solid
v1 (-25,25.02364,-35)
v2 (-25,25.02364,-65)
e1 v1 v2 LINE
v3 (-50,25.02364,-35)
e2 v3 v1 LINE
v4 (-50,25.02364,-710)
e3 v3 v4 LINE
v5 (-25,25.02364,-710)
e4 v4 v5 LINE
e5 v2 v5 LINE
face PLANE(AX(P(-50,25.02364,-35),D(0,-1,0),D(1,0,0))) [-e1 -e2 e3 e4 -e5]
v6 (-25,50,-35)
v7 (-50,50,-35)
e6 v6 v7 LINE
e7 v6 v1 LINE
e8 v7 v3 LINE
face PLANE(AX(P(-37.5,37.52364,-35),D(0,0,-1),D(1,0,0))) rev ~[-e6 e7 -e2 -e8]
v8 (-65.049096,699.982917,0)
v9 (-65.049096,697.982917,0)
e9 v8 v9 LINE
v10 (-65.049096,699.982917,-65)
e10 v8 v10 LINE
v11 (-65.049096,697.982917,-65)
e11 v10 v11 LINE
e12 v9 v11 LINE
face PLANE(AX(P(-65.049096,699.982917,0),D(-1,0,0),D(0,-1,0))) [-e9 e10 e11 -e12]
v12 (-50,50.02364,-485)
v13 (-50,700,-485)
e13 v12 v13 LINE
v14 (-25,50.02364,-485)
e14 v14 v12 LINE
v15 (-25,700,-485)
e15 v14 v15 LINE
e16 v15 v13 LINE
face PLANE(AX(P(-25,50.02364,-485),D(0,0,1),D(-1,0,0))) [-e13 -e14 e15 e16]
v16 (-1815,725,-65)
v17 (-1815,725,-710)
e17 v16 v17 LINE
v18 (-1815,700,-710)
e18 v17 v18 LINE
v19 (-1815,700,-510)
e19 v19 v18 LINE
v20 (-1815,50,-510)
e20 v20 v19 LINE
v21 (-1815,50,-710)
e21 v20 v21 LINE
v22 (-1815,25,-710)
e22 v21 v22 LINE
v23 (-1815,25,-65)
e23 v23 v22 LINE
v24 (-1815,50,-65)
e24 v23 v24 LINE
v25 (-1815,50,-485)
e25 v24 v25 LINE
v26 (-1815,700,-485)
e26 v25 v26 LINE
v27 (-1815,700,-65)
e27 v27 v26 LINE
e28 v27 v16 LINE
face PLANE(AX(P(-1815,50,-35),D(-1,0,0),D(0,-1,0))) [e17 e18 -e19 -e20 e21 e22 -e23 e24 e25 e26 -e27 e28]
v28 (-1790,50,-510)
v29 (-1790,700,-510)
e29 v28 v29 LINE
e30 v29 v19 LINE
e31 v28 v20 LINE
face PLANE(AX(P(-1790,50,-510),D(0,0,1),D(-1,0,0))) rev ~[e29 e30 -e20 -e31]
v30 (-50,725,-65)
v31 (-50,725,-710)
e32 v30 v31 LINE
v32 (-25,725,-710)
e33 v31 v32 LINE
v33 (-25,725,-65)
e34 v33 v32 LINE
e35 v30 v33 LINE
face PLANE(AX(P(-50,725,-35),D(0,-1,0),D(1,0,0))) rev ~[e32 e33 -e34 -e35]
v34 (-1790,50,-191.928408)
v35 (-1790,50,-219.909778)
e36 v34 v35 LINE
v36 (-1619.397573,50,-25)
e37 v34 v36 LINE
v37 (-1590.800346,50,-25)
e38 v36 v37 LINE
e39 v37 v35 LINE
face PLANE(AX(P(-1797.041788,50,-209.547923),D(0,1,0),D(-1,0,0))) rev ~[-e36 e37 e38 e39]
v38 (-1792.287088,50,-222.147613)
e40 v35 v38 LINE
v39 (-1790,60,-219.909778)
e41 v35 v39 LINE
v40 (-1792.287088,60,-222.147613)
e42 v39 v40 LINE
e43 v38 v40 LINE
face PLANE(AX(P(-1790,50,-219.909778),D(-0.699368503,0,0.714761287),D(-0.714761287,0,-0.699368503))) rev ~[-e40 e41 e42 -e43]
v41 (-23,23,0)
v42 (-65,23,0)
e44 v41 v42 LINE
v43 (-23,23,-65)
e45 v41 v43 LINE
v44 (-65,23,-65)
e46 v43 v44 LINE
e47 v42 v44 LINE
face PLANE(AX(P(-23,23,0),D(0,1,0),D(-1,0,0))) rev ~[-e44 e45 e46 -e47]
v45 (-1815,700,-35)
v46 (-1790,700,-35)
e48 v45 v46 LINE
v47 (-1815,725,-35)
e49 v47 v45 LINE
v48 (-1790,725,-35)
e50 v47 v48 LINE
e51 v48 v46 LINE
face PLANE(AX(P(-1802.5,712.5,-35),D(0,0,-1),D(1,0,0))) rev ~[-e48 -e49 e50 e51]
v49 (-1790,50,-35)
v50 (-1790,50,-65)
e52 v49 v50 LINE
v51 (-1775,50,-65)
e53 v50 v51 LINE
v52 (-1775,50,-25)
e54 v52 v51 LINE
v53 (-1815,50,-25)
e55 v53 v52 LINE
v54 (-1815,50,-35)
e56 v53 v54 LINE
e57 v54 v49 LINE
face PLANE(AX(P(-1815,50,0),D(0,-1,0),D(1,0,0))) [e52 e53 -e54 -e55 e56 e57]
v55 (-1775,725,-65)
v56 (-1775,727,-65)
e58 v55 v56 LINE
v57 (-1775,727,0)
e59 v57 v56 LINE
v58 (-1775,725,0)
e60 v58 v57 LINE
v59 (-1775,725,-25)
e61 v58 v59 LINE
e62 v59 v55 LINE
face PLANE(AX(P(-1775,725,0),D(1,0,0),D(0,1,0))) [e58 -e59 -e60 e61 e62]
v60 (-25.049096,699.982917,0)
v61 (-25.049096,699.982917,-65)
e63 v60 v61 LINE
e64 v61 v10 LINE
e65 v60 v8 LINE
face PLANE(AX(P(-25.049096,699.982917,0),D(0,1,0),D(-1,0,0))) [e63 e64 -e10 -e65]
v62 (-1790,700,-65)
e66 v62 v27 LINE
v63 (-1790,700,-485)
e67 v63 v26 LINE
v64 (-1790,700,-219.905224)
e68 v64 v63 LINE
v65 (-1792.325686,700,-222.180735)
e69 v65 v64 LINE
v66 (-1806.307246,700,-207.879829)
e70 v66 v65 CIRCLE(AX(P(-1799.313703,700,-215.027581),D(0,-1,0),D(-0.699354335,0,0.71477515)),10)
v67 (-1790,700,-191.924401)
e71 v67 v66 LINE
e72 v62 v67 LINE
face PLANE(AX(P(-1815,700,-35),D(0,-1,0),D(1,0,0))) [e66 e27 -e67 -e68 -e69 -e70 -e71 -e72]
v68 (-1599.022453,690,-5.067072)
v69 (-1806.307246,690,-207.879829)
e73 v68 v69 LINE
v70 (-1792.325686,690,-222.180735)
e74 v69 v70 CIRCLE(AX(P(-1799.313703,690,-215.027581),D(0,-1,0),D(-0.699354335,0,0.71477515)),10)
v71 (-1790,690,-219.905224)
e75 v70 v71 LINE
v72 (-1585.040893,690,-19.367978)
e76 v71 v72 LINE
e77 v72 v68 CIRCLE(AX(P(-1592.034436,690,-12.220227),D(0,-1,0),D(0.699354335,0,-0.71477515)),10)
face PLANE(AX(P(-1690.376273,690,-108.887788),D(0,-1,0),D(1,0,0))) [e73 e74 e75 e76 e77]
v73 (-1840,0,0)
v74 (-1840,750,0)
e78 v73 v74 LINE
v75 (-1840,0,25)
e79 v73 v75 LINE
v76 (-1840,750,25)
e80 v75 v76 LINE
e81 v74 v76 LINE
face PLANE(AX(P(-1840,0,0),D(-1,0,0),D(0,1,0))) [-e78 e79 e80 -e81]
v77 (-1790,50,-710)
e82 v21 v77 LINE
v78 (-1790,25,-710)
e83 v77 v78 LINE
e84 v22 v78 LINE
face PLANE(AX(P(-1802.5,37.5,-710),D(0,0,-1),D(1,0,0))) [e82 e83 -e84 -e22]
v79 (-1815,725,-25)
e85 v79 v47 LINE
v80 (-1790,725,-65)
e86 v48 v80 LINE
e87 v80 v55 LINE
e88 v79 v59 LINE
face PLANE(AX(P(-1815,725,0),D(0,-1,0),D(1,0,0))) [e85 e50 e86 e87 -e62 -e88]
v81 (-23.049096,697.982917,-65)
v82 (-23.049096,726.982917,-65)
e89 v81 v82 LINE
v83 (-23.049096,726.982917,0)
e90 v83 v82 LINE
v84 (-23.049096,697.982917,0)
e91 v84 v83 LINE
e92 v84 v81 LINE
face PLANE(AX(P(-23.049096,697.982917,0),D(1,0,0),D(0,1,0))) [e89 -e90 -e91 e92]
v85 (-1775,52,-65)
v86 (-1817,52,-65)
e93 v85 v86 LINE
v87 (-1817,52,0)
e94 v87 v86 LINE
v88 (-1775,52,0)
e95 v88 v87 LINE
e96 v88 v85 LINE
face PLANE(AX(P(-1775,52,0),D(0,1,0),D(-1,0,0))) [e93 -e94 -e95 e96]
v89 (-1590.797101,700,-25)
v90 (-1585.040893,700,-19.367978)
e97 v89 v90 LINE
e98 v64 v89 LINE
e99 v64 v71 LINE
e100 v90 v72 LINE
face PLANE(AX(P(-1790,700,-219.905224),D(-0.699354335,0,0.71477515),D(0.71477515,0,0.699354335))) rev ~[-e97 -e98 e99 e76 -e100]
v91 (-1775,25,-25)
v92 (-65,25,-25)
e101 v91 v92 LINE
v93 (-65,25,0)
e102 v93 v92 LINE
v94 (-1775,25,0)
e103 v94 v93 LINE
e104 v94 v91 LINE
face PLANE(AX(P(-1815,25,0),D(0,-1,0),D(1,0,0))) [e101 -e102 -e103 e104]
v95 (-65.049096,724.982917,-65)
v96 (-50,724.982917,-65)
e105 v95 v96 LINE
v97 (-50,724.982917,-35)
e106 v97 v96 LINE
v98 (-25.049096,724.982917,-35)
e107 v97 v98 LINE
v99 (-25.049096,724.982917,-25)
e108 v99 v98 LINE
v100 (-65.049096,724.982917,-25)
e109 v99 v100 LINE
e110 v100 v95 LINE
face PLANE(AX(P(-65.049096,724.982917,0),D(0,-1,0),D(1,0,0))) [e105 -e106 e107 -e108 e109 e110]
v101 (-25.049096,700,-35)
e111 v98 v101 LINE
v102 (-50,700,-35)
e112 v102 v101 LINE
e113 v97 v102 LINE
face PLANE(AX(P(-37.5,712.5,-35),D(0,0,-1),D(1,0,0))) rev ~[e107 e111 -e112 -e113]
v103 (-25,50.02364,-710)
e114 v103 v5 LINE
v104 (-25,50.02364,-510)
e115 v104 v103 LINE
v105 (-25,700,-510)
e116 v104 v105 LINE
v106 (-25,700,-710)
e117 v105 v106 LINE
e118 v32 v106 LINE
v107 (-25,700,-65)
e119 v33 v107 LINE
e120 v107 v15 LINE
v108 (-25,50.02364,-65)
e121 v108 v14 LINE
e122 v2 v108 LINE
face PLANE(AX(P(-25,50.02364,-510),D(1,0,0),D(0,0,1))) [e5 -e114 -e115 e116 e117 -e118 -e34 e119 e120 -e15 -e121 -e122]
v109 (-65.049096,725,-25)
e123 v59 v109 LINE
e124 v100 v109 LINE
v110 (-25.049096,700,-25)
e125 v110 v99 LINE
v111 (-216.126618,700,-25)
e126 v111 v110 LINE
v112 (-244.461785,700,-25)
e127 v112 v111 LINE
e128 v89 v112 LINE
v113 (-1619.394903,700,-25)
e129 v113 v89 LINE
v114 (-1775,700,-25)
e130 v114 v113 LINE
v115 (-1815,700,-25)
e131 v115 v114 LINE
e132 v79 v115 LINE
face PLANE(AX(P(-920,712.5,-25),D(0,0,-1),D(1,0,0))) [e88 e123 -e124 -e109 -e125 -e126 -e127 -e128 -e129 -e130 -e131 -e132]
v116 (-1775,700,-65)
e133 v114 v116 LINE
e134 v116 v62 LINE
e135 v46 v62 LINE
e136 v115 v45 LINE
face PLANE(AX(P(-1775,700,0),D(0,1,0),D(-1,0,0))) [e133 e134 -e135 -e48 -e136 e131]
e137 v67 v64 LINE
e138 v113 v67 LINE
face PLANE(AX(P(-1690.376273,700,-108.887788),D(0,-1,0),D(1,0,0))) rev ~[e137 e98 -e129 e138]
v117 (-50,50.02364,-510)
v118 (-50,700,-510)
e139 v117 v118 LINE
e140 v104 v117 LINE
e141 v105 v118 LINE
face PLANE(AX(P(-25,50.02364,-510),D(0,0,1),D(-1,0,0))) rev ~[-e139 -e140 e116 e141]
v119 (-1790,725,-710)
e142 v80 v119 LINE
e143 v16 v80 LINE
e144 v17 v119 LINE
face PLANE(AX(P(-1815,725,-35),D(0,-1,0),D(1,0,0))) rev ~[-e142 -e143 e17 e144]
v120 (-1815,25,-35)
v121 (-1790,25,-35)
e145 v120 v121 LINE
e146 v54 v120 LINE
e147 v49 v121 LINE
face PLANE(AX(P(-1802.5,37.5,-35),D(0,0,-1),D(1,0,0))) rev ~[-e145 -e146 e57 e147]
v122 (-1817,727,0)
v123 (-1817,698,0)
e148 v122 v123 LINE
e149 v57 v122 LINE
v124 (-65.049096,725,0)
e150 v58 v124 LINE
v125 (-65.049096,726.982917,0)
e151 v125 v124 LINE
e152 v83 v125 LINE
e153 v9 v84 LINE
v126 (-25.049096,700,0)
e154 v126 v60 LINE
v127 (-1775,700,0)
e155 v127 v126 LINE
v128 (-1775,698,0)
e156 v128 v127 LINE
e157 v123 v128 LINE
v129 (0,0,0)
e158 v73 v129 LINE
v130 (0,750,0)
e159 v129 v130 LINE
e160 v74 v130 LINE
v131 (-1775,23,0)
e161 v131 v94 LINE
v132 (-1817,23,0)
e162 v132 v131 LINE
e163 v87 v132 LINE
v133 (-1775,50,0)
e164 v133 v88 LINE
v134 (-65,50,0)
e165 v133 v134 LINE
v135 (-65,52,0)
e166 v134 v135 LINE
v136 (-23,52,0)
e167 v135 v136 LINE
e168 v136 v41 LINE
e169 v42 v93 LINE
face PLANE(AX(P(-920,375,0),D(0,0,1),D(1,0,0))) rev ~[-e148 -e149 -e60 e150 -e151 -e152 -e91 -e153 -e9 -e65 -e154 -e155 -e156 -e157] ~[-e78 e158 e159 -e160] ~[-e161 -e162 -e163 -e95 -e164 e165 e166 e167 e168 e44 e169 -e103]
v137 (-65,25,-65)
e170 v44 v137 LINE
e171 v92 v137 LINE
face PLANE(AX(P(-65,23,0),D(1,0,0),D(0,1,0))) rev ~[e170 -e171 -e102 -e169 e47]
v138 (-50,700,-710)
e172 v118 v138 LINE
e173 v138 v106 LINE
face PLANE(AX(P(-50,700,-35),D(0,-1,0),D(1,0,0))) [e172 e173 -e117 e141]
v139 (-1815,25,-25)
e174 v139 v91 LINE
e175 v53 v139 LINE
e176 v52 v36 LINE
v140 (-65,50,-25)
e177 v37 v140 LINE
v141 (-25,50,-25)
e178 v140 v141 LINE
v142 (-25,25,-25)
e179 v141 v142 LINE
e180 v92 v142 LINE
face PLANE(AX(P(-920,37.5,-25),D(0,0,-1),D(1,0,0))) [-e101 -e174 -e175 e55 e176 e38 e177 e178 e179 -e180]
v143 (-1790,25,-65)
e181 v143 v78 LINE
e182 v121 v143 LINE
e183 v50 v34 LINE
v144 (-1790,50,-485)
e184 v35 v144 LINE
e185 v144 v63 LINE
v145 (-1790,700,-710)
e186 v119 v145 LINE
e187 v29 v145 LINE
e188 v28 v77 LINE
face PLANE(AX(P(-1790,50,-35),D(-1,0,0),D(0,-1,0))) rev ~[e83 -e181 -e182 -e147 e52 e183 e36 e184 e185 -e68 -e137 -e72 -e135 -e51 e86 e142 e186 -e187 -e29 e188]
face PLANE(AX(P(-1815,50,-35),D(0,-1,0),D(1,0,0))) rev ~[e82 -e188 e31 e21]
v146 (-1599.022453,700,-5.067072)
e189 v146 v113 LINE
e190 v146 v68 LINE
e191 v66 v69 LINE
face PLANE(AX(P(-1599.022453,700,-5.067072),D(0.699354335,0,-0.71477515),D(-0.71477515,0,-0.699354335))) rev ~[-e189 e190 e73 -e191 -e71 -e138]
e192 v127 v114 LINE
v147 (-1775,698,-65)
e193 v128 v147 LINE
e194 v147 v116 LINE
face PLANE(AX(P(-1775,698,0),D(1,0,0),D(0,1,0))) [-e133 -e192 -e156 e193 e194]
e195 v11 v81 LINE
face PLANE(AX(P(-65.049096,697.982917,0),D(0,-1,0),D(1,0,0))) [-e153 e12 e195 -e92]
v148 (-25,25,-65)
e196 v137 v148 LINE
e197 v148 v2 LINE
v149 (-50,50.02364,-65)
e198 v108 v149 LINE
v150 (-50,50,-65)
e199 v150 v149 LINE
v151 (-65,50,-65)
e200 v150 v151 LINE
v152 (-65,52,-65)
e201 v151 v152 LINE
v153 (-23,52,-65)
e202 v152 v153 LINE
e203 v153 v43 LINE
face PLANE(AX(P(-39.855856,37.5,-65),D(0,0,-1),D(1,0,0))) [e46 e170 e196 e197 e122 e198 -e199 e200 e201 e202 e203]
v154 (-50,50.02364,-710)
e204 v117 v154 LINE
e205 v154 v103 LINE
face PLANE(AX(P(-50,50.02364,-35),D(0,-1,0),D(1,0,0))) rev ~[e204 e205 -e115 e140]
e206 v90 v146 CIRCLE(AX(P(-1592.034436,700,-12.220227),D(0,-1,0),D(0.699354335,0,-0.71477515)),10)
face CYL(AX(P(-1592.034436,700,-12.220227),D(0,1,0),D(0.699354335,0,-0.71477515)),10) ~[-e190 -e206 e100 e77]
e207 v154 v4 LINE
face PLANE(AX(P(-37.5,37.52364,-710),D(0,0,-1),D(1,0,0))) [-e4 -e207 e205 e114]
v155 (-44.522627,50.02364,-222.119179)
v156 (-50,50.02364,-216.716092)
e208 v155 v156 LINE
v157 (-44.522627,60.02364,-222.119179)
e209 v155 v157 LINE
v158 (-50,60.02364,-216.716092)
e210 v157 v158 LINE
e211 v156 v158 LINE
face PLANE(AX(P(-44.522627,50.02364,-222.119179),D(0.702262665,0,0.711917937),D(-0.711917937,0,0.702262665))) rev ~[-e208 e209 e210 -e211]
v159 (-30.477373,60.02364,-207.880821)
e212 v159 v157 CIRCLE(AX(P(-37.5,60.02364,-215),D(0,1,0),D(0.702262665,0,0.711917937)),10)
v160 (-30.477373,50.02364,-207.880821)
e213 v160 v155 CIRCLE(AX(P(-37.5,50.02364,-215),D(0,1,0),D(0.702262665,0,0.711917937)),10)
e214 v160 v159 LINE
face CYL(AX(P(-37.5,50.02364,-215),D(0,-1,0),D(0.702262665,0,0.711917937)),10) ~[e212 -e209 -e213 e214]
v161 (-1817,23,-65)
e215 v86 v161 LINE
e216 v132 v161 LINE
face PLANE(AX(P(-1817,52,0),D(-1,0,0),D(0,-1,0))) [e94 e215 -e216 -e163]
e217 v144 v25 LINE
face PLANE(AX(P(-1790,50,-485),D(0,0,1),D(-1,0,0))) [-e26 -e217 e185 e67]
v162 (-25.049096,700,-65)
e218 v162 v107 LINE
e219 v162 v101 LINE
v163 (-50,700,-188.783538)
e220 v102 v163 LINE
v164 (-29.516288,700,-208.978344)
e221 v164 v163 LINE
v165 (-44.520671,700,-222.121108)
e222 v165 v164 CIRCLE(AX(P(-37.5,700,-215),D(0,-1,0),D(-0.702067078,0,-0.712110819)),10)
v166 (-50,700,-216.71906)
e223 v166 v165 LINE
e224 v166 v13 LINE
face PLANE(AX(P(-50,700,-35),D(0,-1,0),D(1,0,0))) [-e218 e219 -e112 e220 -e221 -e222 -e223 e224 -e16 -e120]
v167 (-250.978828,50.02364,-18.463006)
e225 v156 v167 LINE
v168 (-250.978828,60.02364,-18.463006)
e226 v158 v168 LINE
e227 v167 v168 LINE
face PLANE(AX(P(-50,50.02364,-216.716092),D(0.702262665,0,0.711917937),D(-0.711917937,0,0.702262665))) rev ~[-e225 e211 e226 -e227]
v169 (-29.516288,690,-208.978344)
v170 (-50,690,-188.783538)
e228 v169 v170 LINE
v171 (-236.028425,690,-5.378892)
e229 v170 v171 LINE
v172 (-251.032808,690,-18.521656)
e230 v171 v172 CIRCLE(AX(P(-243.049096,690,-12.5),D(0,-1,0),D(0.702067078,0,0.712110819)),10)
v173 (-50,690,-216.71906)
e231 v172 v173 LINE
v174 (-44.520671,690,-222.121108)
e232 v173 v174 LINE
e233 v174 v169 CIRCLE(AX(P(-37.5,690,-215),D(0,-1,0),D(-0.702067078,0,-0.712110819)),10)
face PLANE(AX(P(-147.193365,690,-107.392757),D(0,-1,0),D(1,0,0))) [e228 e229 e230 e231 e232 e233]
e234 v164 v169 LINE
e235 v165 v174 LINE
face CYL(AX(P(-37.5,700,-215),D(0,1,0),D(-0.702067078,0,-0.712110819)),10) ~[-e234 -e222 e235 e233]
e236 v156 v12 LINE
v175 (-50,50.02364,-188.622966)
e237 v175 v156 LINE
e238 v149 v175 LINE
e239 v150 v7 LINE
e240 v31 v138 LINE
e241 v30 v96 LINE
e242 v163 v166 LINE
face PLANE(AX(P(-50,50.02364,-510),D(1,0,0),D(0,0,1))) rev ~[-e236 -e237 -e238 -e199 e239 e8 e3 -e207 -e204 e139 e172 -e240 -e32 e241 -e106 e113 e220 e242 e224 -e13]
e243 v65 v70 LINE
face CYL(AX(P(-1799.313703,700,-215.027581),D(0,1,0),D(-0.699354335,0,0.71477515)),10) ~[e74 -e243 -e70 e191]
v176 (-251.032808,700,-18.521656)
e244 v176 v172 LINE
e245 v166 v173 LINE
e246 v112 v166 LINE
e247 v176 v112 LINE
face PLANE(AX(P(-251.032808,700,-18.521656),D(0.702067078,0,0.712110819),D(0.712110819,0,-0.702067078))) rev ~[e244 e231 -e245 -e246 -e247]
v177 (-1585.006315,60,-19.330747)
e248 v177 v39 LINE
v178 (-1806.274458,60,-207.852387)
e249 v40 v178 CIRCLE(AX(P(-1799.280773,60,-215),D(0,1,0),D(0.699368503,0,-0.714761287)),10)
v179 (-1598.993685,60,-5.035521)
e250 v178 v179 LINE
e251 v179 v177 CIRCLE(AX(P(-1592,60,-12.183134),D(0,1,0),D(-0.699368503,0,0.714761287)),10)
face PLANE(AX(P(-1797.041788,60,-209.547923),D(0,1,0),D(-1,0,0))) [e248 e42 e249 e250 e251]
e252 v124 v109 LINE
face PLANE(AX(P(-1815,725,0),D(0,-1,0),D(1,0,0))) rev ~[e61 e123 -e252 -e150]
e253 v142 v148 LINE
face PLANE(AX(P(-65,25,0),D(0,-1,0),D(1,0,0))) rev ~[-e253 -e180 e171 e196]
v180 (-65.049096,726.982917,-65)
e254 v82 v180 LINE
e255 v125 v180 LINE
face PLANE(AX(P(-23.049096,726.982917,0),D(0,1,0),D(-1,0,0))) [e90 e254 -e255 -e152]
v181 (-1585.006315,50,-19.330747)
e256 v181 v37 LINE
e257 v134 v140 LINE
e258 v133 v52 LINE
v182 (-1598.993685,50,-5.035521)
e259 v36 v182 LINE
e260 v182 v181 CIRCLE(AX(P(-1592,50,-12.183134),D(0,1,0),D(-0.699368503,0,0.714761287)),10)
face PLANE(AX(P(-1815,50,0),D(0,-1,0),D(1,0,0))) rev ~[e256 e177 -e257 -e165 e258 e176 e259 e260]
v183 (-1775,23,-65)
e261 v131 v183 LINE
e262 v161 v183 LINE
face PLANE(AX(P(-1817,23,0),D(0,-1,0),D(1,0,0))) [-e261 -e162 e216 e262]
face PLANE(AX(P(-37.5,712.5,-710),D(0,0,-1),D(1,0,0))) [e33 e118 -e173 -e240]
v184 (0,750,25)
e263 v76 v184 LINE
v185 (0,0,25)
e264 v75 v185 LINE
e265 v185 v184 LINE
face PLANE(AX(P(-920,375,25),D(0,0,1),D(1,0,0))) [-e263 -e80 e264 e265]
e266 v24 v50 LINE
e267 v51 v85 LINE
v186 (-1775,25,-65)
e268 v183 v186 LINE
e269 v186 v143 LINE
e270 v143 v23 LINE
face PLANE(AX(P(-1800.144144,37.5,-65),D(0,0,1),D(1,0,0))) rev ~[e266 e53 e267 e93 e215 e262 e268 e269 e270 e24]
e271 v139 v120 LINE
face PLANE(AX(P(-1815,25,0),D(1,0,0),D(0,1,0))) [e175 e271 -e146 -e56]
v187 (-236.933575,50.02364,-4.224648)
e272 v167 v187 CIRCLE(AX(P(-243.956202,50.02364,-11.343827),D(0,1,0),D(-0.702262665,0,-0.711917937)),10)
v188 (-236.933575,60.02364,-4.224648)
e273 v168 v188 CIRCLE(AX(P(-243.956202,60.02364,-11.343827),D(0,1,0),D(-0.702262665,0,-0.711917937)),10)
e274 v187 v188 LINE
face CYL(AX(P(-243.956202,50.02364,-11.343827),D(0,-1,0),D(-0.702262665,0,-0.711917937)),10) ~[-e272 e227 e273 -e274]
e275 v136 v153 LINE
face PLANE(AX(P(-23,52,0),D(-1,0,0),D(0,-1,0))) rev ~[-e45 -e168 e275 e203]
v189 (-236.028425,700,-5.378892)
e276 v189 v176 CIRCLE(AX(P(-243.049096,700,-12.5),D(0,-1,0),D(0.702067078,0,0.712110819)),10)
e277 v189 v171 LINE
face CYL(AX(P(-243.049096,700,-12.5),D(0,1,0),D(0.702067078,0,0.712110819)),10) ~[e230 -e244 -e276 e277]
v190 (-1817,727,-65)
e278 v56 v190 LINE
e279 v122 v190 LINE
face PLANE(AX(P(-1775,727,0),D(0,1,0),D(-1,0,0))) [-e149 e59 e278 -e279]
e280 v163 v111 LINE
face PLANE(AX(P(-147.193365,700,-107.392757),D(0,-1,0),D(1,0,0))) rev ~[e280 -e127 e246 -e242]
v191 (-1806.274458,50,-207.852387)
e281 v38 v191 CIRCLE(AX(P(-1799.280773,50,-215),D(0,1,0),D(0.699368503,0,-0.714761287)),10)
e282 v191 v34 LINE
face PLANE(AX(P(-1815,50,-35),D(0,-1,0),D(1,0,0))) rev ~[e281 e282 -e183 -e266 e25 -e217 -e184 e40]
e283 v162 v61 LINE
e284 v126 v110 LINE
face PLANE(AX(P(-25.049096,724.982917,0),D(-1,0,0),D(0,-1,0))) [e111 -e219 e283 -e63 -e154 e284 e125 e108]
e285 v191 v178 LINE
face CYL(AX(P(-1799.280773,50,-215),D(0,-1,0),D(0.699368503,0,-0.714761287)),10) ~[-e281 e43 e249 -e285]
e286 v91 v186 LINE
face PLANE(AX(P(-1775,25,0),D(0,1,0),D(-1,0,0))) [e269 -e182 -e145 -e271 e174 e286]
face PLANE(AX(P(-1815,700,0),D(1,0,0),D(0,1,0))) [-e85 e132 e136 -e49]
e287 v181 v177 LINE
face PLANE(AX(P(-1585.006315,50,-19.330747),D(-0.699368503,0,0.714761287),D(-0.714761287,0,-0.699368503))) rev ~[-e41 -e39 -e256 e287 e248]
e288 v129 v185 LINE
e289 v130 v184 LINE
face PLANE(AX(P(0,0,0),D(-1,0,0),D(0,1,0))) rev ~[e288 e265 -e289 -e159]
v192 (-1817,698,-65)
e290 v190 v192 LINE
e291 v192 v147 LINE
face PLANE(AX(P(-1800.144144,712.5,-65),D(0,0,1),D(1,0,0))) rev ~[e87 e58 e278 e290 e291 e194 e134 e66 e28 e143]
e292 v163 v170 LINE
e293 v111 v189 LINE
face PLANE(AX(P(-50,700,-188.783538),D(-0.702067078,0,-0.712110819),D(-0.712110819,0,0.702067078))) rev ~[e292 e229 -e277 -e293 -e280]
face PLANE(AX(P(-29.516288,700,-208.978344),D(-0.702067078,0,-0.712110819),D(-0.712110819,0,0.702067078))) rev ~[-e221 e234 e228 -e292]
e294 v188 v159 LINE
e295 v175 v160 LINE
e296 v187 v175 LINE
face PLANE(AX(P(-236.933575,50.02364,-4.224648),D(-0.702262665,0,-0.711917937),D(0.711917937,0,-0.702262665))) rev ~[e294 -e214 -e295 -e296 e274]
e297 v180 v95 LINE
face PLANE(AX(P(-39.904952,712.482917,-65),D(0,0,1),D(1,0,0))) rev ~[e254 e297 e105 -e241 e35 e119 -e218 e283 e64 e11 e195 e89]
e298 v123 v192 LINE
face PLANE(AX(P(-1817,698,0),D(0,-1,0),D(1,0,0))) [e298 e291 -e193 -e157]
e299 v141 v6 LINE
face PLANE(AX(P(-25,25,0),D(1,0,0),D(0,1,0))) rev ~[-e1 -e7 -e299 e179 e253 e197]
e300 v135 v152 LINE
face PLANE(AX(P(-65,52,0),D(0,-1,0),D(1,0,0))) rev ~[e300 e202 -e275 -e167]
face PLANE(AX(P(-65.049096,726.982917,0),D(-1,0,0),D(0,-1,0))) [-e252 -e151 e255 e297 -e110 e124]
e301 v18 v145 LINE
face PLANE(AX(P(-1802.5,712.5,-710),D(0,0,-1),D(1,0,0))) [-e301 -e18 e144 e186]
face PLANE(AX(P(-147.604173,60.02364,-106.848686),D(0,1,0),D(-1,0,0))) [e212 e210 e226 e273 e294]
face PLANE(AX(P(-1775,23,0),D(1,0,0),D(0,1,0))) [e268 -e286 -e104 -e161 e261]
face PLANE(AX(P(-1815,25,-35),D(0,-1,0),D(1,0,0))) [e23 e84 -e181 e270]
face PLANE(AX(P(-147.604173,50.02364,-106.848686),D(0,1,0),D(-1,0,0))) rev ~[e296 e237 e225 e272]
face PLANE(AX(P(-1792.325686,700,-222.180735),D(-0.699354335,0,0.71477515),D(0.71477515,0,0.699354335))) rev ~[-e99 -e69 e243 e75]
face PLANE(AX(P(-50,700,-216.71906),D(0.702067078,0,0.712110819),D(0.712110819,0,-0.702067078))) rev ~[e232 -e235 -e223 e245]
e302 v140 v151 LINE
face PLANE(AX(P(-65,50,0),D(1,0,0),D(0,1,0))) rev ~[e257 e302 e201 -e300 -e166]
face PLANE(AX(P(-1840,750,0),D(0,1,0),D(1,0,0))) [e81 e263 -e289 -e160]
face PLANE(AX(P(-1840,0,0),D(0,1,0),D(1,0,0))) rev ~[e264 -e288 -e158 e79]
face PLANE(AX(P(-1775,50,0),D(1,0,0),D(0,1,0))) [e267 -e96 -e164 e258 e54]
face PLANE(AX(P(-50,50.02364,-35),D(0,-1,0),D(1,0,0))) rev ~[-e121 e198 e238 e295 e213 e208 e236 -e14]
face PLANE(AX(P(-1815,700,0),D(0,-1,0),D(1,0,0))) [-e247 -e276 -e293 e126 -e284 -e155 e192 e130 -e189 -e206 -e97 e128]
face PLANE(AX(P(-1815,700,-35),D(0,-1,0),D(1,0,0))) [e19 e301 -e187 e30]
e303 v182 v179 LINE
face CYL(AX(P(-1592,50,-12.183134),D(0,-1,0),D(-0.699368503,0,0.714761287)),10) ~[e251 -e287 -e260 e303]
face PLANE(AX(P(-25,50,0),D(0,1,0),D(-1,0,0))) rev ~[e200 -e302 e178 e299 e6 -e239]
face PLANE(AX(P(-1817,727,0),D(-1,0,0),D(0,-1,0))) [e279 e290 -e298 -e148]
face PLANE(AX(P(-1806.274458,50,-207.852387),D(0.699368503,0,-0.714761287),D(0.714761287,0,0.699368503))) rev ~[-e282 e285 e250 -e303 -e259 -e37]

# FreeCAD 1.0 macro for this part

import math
import FreeCAD as App
import Part
import Sketcher

V = App.Vector


def add_polygon(sketch, points):
    """Adds a closed chain of lines whose ends are joined by coincident constraints."""
    first, n = sketch.GeometryCount, len(points)
    for a, b in zip(points, points[1:] + points[:1]):
        sketch.addGeometry(Part.LineSegment(App.Vector(*a, 0), App.Vector(*b, 0)), False)
    for i in range(n):
        sketch.addConstraint(Sketcher.Constraint("Coincident", first + i, 2, first + (i + 1) % n, 1))

doc = App.newDocument("Part")
params = doc.addObject("Spreadsheet::Sheet", "Params")
for row, (alias, value) in enumerate([
    ("sketch1_width", "1840 mm"),
    ("sketch1_height", "750 mm"),
    ("pad1_length", "25 mm"),
    ("sketch2_width", "1790 mm"),
    ("sketch2_height", "25 mm"),
    ("pad2_length", "25 mm"),
    ("sketch3_width", "40 mm"),
    ("sketch3_width2", "42 mm"),
    ("sketch3_height", "25 mm"),
    ("sketch3_height2", "2 mm"),
    ("pad3_length", "65 mm"),
    ("sketch4_width", "25 mm"),
    ("pad4_length", "675 mm"),
    ("sketch5_width", "40 mm"),
    ("sketch5_width2", "42 mm"),
    ("sketch5_height", "2 mm"),
    ("sketch5_height2", "29 mm"),
    ("pad5_length", "65 mm"),
    ("sketch6_width", "25 mm"),
    ("pad6_length", "675 mm"),
    ("sketch7_width", "25 mm"),
    ("pad7_length", "675 mm"),
    ("sketch8_width", "25 mm"),
    ("pad8_length", "650 mm"),
    ("sketch9_width", "25 mm"),
    ("pad9_length", "650 mm"),
    ("sketch10_radius", "10 mm"),
    ("pad10_length", "10 mm"),
    ("sketch11_radius", "10 mm"),
    ("sketch11_length", "290 mm"),
    ("pad11_length", "10 mm"),
    ("sketch12_radius", "10 mm"),
    ("sketch12_length", "290 mm"),
    ("pad12_length", "10 mm"),
    ("sketch13_radius", "10 mm"),
    ("sketch13_length", "290 mm"),
    ("pad13_length", "10 mm"),
], start=1):
    params.set(f"A{row}", alias)
    params.set(f"B{row}", "=" + value)
    params.setAlias(f"B{row}", alias)

body = doc.addObject("PartDesign::Body", "Body")

sketch1 = doc.addObject("Sketcher::SketchObject", "Sketch")
body.addObject(sketch1)
sketch1.AttachmentSupport = (doc.XY_Plane, [""])
sketch1.MapMode = "FlatFace"
add_polygon(sketch1, [(-1840, 750), (-1840, 0), (0, 0), (0, 750)])
sketch1.addConstraint(Sketcher.Constraint("Vertical", 0))
sketch1.addConstraint(Sketcher.Constraint("Horizontal", 1))
sketch1.addConstraint(Sketcher.Constraint("Vertical", 2))
sketch1.addConstraint(Sketcher.Constraint("Horizontal", 3))
sketch1.addConstraint(Sketcher.Constraint("Coincident", 1, 2, -1, 1))
sketch1.addConstraint(Sketcher.Constraint("DistanceX", 1, 1, 1, 2, 1840.0))
sketch1.addConstraint(Sketcher.Constraint("DistanceY", 0, 2, 0, 1, 750.0))
sketch1.setExpression("Constraints[9]", "Params.sketch1_width")
sketch1.setExpression("Constraints[10]", "Params.sketch1_height")
pad1 = doc.addObject("PartDesign::Pad", "Pad")
body.addObject(pad1)
pad1.Profile = sketch1
pad1.setExpression("Length", "Params.pad1_length")

sketch2 = doc.addObject("Sketcher::SketchObject", "Sketch001")
body.addObject(sketch2)
sketch2.AttachmentSupport = (doc.XY_Plane, [""])
sketch2.MapMode = "FlatFace"
add_polygon(sketch2, [(-1815, 25), (-1815, 50), (-25, 50), (-25, 25)])
add_polygon(sketch2, [(-1815, 700), (-1815, 725), (-25, 725), (-25, 700)])
sketch2.addConstraint(Sketcher.Constraint("Vertical", 0))
sketch2.addConstraint(Sketcher.Constraint("Horizontal", 1))
sketch2.addConstraint(Sketcher.Constraint("Vertical", 2))
sketch2.addConstraint(Sketcher.Constraint("Horizontal", 3))
sketch2.addConstraint(Sketcher.Constraint("Vertical", 4))
sketch2.addConstraint(Sketcher.Constraint("Horizontal", 5))
sketch2.addConstraint(Sketcher.Constraint("Vertical", 6))
sketch2.addConstraint(Sketcher.Constraint("Horizontal", 7))
sketch2.addConstraint(Sketcher.Constraint("Vertical", 3, 2, 4, 2))
sketch2.addConstraint(Sketcher.Constraint("Vertical", 2, 2, 5, 2))
sketch2.addConstraint(Sketcher.Constraint("Equal", 2, 4))
sketch2.addConstraint(Sketcher.Constraint("DistanceX", 1, 1, 1, 2, 1790.0))
sketch2.addConstraint(Sketcher.Constraint("DistanceY", 0, 1, 0, 2, 25.0))
sketch2.addConstraint(Sketcher.Constraint("DistanceX", 0, 2, -1, 1, 1815.0))
sketch2.addConstraint(Sketcher.Constraint("DistanceY", -1, 1, 0, 2, 50.0))
sketch2.addConstraint(Sketcher.Constraint("DistanceY", -1, 1, 4, 2, 725.0))
sketch2.setExpression("Constraints[19]", "Params.sketch2_width")
sketch2.setExpression("Constraints[20]", "Params.sketch2_height")
pad2 = doc.addObject("PartDesign::Pad", "Pad001")
body.addObject(pad2)
pad2.Profile = sketch2
pad2.setExpression("Length", "Params.pad2_length")
pad2.Reversed = True

sketch3 = doc.addObject("Sketcher::SketchObject", "Sketch002")
body.addObject(sketch3)
sketch3.AttachmentSupport = (doc.XY_Plane, [""])
sketch3.MapMode = "FlatFace"
add_polygon(sketch3, [(-65, 25), (-25, 25), (-25, 50), (-65, 50), (-65, 52), (-23, 52), (-23, 23), (-65, 23)])
sketch3.addConstraint(Sketcher.Constraint("Horizontal", 0))
sketch3.addConstraint(Sketcher.Constraint("Vertical", 1))
sketch3.addConstraint(Sketcher.Constraint("Horizontal", 2))
sketch3.addConstraint(Sketcher.Constraint("Vertical", 3))
sketch3.addConstraint(Sketcher.Constraint("Horizontal", 4))
sketch3.addConstraint(Sketcher.Constraint("Vertical", 5))
sketch3.addConstraint(Sketcher.Constraint("Horizontal", 6))
sketch3.addConstraint(Sketcher.Constraint("Vertical", 7))
sketch3.addConstraint(Sketcher.Constraint("Vertical", 3, 2, 6, 2))
sketch3.addConstraint(Sketcher.Constraint("Equal", 3, 7))
sketch3.addConstraint(Sketcher.Constraint("DistanceX", 0, 1, 0, 2, 40.0))
sketch3.addConstraint(Sketcher.Constraint("DistanceX", 4, 1, 4, 2, 42.0))
sketch3.addConstraint(Sketcher.Constraint("DistanceY", 1, 1, 1, 2, 25.0))
sketch3.addConstraint(Sketcher.Constraint("DistanceY", 3, 1, 3, 2, 2.0))
sketch3.addConstraint(Sketcher.Constraint("DistanceX", 0, 2, -1, 1, 25.0))
sketch3.addConstraint(Sketcher.Constraint("DistanceY", -1, 1, 0, 2, 25.0))
sketch3.setExpression("Constraints[18]", "Params.sketch3_width")
sketch3.setExpression("Constraints[19]", "Params.sketch3_width2")
sketch3.setExpression("Constraints[20]", "Params.sketch3_height")
sketch3.setExpression("Constraints[21]", "Params.sketch3_height2")
pad3 = doc.addObject("PartDesign::Pad", "Pad002")
body.addObject(pad3)
pad3.Profile = sketch3
pad3.setExpression("Length", "Params.pad3_length")
pad3.Reversed = True

sketch4 = doc.addObject("Sketcher::SketchObject", "Sketch003")
body.addObject(sketch4)
sketch4.AttachmentSupport = (doc.XY_Plane, [""])
sketch4.MapMode = "FlatFace"
sketch4.AttachmentOffset = App.Placement(V(0, 0, -35), App.Rotation())
add_polygon(sketch4, [(-50, 25), (-50, 50), (-25, 50), (-25, 25)])
sketch4.addConstraint(Sketcher.Constraint("Vertical", 0))
sketch4.addConstraint(Sketcher.Constraint("Horizontal", 1))
sketch4.addConstraint(Sketcher.Constraint("Vertical", 2))
sketch4.addConstraint(Sketcher.Constraint("Horizontal", 3))
sketch4.addConstraint(Sketcher.Constraint("Equal", 3, 0))
sketch4.addConstraint(Sketcher.Constraint("DistanceX", 1, 1, 1, 2, 25.0))
sketch4.addConstraint(Sketcher.Constraint("DistanceX", 0, 2, -1, 1, 50.0))
sketch4.addConstraint(Sketcher.Constraint("DistanceY", -1, 1, 0, 2, 50.02364))
sketch4.setExpression("Constraints[9]", "Params.sketch4_width")
pad4 = doc.addObject("PartDesign::Pad", "Pad003")
body.addObject(pad4)
pad4.Profile = sketch4
pad4.setExpression("Length", "Params.pad4_length")
pad4.Reversed = True

sketch5 = doc.addObject("Sketcher::SketchObject", "Sketch004")
body.addObject(sketch5)
sketch5.AttachmentSupport = (doc.XY_Plane, [""])
sketch5.MapMode = "FlatFace"
add_polygon(sketch5, [(-1815, 725), (-1775, 725), (-1775, 727), (-1817, 727), (-1817, 698), (-1775, 698), (-1775, 700), (-1815, 700)])
add_polygon(sketch5, [(-65, 727), (-65, 725), (-25, 725), (-25, 700), (-65, 700), (-65, 698), (-23, 698), (-23, 727)])
add_polygon(sketch5, [(-1775, 25), (-1815, 25), (-1815, 50), (-1775, 50), (-1775, 52), (-1817, 52), (-1817, 23), (-1775, 23)])
sketch5.addConstraint(Sketcher.Constraint("Horizontal", 0))
sketch5.addConstraint(Sketcher.Constraint("Vertical", 1))
sketch5.addConstraint(Sketcher.Constraint("Horizontal", 2))
sketch5.addConstraint(Sketcher.Constraint("Vertical", 3))
sketch5.addConstraint(Sketcher.Constraint("Horizontal", 4))
sketch5.addConstraint(Sketcher.Constraint("Vertical", 5))
sketch5.addConstraint(Sketcher.Constraint("Horizontal", 6))
sketch5.addConstraint(Sketcher.Constraint("Vertical", 7))
sketch5.addConstraint(Sketcher.Constraint("Vertical", 8))
sketch5.addConstraint(Sketcher.Constraint("Horizontal", 9))
sketch5.addConstraint(Sketcher.Constraint("Vertical", 10))
sketch5.addConstraint(Sketcher.Constraint("Horizontal", 11))
sketch5.addConstraint(Sketcher.Constraint("Vertical", 12))
sketch5.addConstraint(Sketcher.Constraint("Horizontal", 13))
sketch5.addConstraint(Sketcher.Constraint("Vertical", 14))
sketch5.addConstraint(Sketcher.Constraint("Horizontal", 15))
sketch5.addConstraint(Sketcher.Constraint("Horizontal", 16))
sketch5.addConstraint(Sketcher.Constraint("Vertical", 17))
sketch5.addConstraint(Sketcher.Constraint("Horizontal", 18))
sketch5.addConstraint(Sketcher.Constraint("Vertical", 19))
sketch5.addConstraint(Sketcher.Constraint("Horizontal", 20))
sketch5.addConstraint(Sketcher.Constraint("Vertical", 21))
sketch5.addConstraint(Sketcher.Constraint("Horizontal", 22))
sketch5.addConstraint(Sketcher.Constraint("Vertical", 23))
sketch5.addConstraint(Sketcher.Constraint("Vertical", 1, 2, 4, 2))
sketch5.addConstraint(Sketcher.Constraint("Vertical", 8, 2, 11, 2))
sketch5.addConstraint(Sketcher.Constraint("Vertical", 7, 2, 16, 2))
sketch5.addConstraint(Sketcher.Constraint("Vertical", 5, 2, 18, 2))
sketch5.addConstraint(Sketcher.Constraint("Vertical", 3, 2, 20, 2))
sketch5.addConstraint(Sketcher.Constraint("Vertical", 19, 2, 22, 2))
sketch5.addConstraint(Sketcher.Constraint("Equal", 6, 9))
sketch5.addConstraint(Sketcher.Constraint("Equal", 4, 13))
sketch5.addConstraint(Sketcher.Constraint("Equal", 1, 5))
sketch5.addConstraint(Sketcher.Constraint("Equal", 5, 8))
sketch5.addConstraint(Sketcher.Constraint("Equal", 7, 10))
sketch5.addConstraint(Sketcher.Constraint("Equal", 8, 12))
sketch5.addConstraint(Sketcher.Constraint("Equal", 10, 17))
sketch5.addConstraint(Sketcher.Constraint("Equal", 12, 19))
sketch5.addConstraint(Sketcher.Constraint("Equal", 14, 21))
sketch5.addConstraint(Sketcher.Constraint("DistanceX", 0, 1, 0, 2, 40.0))
sketch5.addConstraint(Sketcher.Constraint("DistanceX", 2, 2, 2, 1, 42.0))
sketch5.addConstraint(Sketcher.Constraint("DistanceY", 1, 1, 1, 2, 2.0))
sketch5.addConstraint(Sketcher.Constraint("DistanceY", 3, 2, 3, 1, 29.0))
sketch5.addConstraint(Sketcher.Constraint("DistanceX", 0, 2, -1, 1, 1775.0))
sketch5.addConstraint(Sketcher.Constraint("DistanceY", -1, 1, 0, 2, 725.0))
sketch5.addConstraint(Sketcher.Constraint("DistanceY", -1, 1, 16, 2, 25.0))
sketch5.addConstraint(Sketcher.Constraint("DistanceX", 8, 2, -1, 1, 65.049096))
sketch5.addConstraint(Sketcher.Constraint("DistanceY", -1, 1, 8, 2, 724.982917))
sketch5.setExpression("Constraints[63]", "Params.sketch5_width")
sketch5.setExpression("Constraints[64]", "Params.sketch5_width2")
sketch5.setExpression("Constraints[65]", "Params.sketch5_height")
sketch5.setExpression("Constraints[66]", "Params.sketch5_height2")
pad5 = doc.addObject("PartDesign::Pad", "Pad004")
body.addObject(pad5)
pad5.Profile = sketch5
pad5.setExpression("Length", "Params.pad5_length")
pad5.Reversed = True

sketch6 = doc.addObject("Sketcher::SketchObject", "Sketch005")
body.addObject(sketch6)
sketch6.AttachmentSupport = (doc.XY_Plane, [""])
sketch6.MapMode = "FlatFace"
sketch6.AttachmentOffset = App.Placement(V(0, 0, -35), App.Rotation())
add_polygon(sketch6, [(-1815, 25), (-1815, 50), (-1790, 50), (-1790, 25)])
sketch6.addConstraint(Sketcher.Constraint("Vertical", 0))
sketch6.addConstraint(Sketcher.Constraint("Horizontal", 1))
sketch6.addConstraint(Sketcher.Constraint("Vertical", 2))
sketch6.addConstraint(Sketcher.Constraint("Horizontal", 3))
sketch6.addConstraint(Sketcher.Constraint("Equal", 3, 0))
sketch6.addConstraint(Sketcher.Constraint("DistanceX", 1, 1, 1, 2, 25.0))
sketch6.addConstraint(Sketcher.Constraint("DistanceX", 0, 2, -1, 1, 1815.0))
sketch6.addConstraint(Sketcher.Constraint("DistanceY", -1, 1, 0, 2, 50.0))
sketch6.setExpression("Constraints[9]", "Params.sketch6_width")
pad6 = doc.addObject("PartDesign::Pad", "Pad005")
body.addObject(pad6)
pad6.Profile = sketch6
pad6.setExpression("Length", "Params.pad6_length")
pad6.Reversed = True

sketch7 = doc.addObject("Sketcher::SketchObject", "Sketch006")
body.addObject(sketch7)
sketch7.AttachmentSupport = (doc.XY_Plane, [""])
sketch7.MapMode = "FlatFace"
sketch7.AttachmentOffset = App.Placement(V(0, 0, -35), App.Rotation())
add_polygon(sketch7, [(-50, 700), (-50, 725), (-25, 725), (-25, 700)])
add_polygon(sketch7, [(-1815, 700), (-1815, 725), (-1790, 725), (-1790, 700)])
sketch7.addConstraint(Sketcher.Constraint("Vertical", 0))
sketch7.addConstraint(Sketcher.Constraint("Horizontal", 1))
sketch7.addConstraint(Sketcher.Constraint("Vertical", 2))
sketch7.addConstraint(Sketcher.Constraint("Horizontal", 3))
sketch7.addConstraint(Sketcher.Constraint("Vertical", 4))
sketch7.addConstraint(Sketcher.Constraint("Horizontal", 5))
sketch7.addConstraint(Sketcher.Constraint("Vertical", 6))
sketch7.addConstraint(Sketcher.Constraint("Horizontal", 7))
sketch7.addConstraint(Sketcher.Constraint("Horizontal", 1, 2, 4, 2))
sketch7.addConstraint(Sketcher.Constraint("Horizontal", 3, 2, 6, 2))
sketch7.addConstraint(Sketcher.Constraint("Equal", 3, 5))
sketch7.addConstraint(Sketcher.Constraint("Equal", 7, 0))
sketch7.addConstraint(Sketcher.Constraint("DistanceX", 1, 1, 1, 2, 25.0))
sketch7.addConstraint(Sketcher.Constraint("DistanceX", 0, 2, -1, 1, 50.0))
sketch7.addConstraint(Sketcher.Constraint("DistanceY", -1, 1, 0, 2, 725.0))
sketch7.addConstraint(Sketcher.Constraint("DistanceX", 4, 2, -1, 1, 1815.0))
sketch7.setExpression("Constraints[20]", "Params.sketch7_width")
pad7 = doc.addObject("PartDesign::Pad", "Pad006")
body.addObject(pad7)
pad7.Profile = sketch7
pad7.setExpression("Length", "Params.pad7_length")
pad7.Reversed = True

sketch8 = doc.addObject("Sketcher::SketchObject", "Sketch007")
body.addObject(sketch8)
sketch8.AttachmentSupport = (doc.XZ_Plane, [""])
sketch8.MapMode = "FlatFace"
sketch8.AttachmentOffset = App.Placement(V(0, 0, -50.02364), App.Rotation())
add_polygon(sketch8, [(-25, -485), (-25, -510), (-50, -510), (-50, -485)])
sketch8.addConstraint(Sketcher.Constraint("Vertical", 0))
sketch8.addConstraint(Sketcher.Constraint("Horizontal", 1))
sketch8.addConstraint(Sketcher.Constraint("Vertical", 2))
sketch8.addConstraint(Sketcher.Constraint("Horizontal", 3))
sketch8.addConstraint(Sketcher.Constraint("Equal", 3, 0))
sketch8.addConstraint(Sketcher.Constraint("DistanceX", 1, 2, 1, 1, 25.0))
sketch8.addConstraint(Sketcher.Constraint("DistanceX", 0, 2, -1, 1, 25.0))
sketch8.addConstraint(Sketcher.Constraint("DistanceY", 0, 2, -1, 1, 510.0))
sketch8.setExpression("Constraints[9]", "Params.sketch8_width")
pad8 = doc.addObject("PartDesign::Pad", "Pad007")
body.addObject(pad8)
pad8.Profile = sketch8
pad8.setExpression("Length", "Params.pad8_length")
pad8.Reversed = True

sketch9 = doc.addObject("Sketcher::SketchObject", "Sketch008")
body.addObject(sketch9)
sketch9.AttachmentSupport = (doc.XZ_Plane, [""])
sketch9.MapMode = "FlatFace"
sketch9.AttachmentOffset = App.Placement(V(0, 0, -50), App.Rotation())
add_polygon(sketch9, [(-1790, -485), (-1790, -510), (-1815, -510), (-1815, -485)])
sketch9.addConstraint(Sketcher.Constraint("Vertical", 0))
sketch9.addConstraint(Sketcher.Constraint("Horizontal", 1))
sketch9.addConstraint(Sketcher.Constraint("Vertical", 2))
sketch9.addConstraint(Sketcher.Constraint("Horizontal", 3))
sketch9.addConstraint(Sketcher.Constraint("Equal", 3, 0))
sketch9.addConstraint(Sketcher.Constraint("DistanceX", 1, 2, 1, 1, 25.0))
sketch9.addConstraint(Sketcher.Constraint("DistanceX", 0, 2, -1, 1, 1790.0))
sketch9.addConstraint(Sketcher.Constraint("DistanceY", 0, 2, -1, 1, 510.0))
sketch9.setExpression("Constraints[9]", "Params.sketch9_width")
pad9 = doc.addObject("PartDesign::Pad", "Pad008")
body.addObject(pad9)
pad9.Profile = sketch9
pad9.setExpression("Length", "Params.pad9_length")
pad9.Reversed = True

sketch10 = doc.addObject("Sketcher::SketchObject", "Sketch009")
body.addObject(sketch10)
sketch10.AttachmentSupport = (doc.XZ_Plane, [""])
sketch10.MapMode = "FlatFace"
sketch10.AttachmentOffset = App.Placement(V(0, 0, -700), App.Rotation())
sketch10.addGeometry(Part.LineSegment(V(-50, -189, 0), V(-236, -5, 0)), False)
sketch10.addGeometry(Part.ArcOfCircle(Part.Circle(V(-243, -12, 0), V(0, 0, 1), 10), math.radians(45), math.radians(217)), False)
sketch10.addGeometry(Part.LineSegment(V(-251, -19, 0), V(-50, -217, 0)), False)
sketch10.addGeometry(Part.LineSegment(V(-50, -217, 0), V(-45, -222, 0)), False)
sketch10.addGeometry(Part.ArcOfCircle(Part.Circle(V(-38, -215, 0), V(0, 0, 1), 10), math.radians(-135), math.radians(37)), False)
sketch10.addGeometry(Part.LineSegment(V(-30, -209, 0), V(-50, -189, 0)), False)
sketch10.addConstraint(Sketcher.Constraint("Tangent", 0, 2, 1, 1))
sketch10.addConstraint(Sketcher.Constraint("Coincident", 1, 2, 2, 1))
sketch10.addConstraint(Sketcher.Constraint("Coincident", 2, 2, 3, 1))
sketch10.addConstraint(Sketcher.Constraint("Tangent", 3, 2, 4, 1))
sketch10.addConstraint(Sketcher.Constraint("Coincident", 4, 2, 5, 1))
sketch10.addConstraint(Sketcher.Constraint("Coincident", 5, 2, 0, 1))
sketch10.addConstraint(Sketcher.Constraint("Equal", 1, 4))
sketch10.addConstraint(Sketcher.Constraint("Parallel", 0, 2))
sketch10.addConstraint(Sketcher.Constraint("Parallel", 2, 3))
sketch10.addConstraint(Sketcher.Constraint("Parallel", 3, 5))
sketch10.addConstraint(Sketcher.Constraint("Vertical", 2, 2, 5, 2))
sketch10.addConstraint(Sketcher.Constraint("Radius", 1, 10.0))
sketch10.addConstraint(Sketcher.Constraint("DistanceY", 4, 3, -1, 1, 215.0))
sketch10.addConstraint(Sketcher.Constraint("DistanceX", 2, 2, -1, 1, 50.0))
sketch10.addConstraint(Sketcher.Constraint("DistanceY", 1, 3, -1, 1, 12.5))
sketch10.addConstraint(Sketcher.Constraint("DistanceX", 4, 3, -1, 1, 37.5))
sketch10.addConstraint(Sketcher.Constraint("Distance", 0, 261.235218))
sketch10.addConstraint(Sketcher.Constraint("Distance", 2, 282.30551))
sketch10.setExpression("Constraints[11]", "Params.sketch10_radius")
pad10 = doc.addObject("PartDesign::Pad", "Pad009")
body.addObject(pad10)
pad10.Profile = sketch10
pad10.setExpression("Length", "Params.pad10_length")

sketch11 = doc.addObject("Sketcher::SketchObject", "Sketch010")
body.addObject(sketch11)
sketch11.AttachmentSupport = (doc.XZ_Plane, [""])
sketch11.MapMode = "FlatFace"
sketch11.AttachmentOffset = App.Placement(V(0, 0, -50.02364), App.Rotation())
sketch11.addGeometry(Part.LineSegment(V(-50, -217, 0), V(-251, -18, 0)), False)
sketch11.addGeometry(Part.ArcOfCircle(Part.Circle(V(-244, -11, 0), V(0, 0, 1), 10), math.radians(45), math.radians(225)), False)
sketch11.addGeometry(Part.LineSegment(V(-237, -4, 0), V(-30, -208, 0)), False)
sketch11.addGeometry(Part.ArcOfCircle(Part.Circle(V(-38, -215, 0), V(0, 0, 1), 10), math.radians(-135), math.radians(45)), False)
sketch11.addGeometry(Part.LineSegment(V(-45, -222, 0), V(-50, -217, 0)), False)
sketch11.addConstraint(Sketcher.Constraint("Tangent", 0, 2, 1, 2))
sketch11.addConstraint(Sketcher.Constraint("Tangent", 1, 1, 2, 1))
sketch11.addConstraint(Sketcher.Constraint("Tangent", 2, 2, 3, 2))
sketch11.addConstraint(Sketcher.Constraint("Tangent", 3, 1, 4, 1))
sketch11.addConstraint(Sketcher.Constraint("Coincident", 4, 2, 0, 1))
sketch11.addConstraint(Sketcher.Constraint("Equal", 1, 3))
sketch11.addConstraint(Sketcher.Constraint("Parallel", 0, 2))
sketch11.addConstraint(Sketcher.Constraint("Radius", 1, 10.0))
sketch11.addConstraint(Sketcher.Constraint("Distance", 2, 290.0))
sketch11.addConstraint(Sketcher.Constraint("DistanceY", 3, 3, -1, 1, 215.0))
sketch11.addConstraint(Sketcher.Constraint("DistanceX", 4, 2, -1, 1, 50.0))
sketch11.addConstraint(Sketcher.Constraint("DistanceX", 3, 3, -1, 1, 37.5))
sketch11.addConstraint(Sketcher.Constraint("DistanceX", 1, 3, -1, 1, 243.956202))
sketch11.setExpression("Constraints[7]", "Params.sketch11_radius")
sketch11.setExpression("Constraints[8]", "Params.sketch11_length")
pad11 = doc.addObject("PartDesign::Pad", "Pad010")
body.addObject(pad11)
pad11.Profile = sketch11
pad11.setExpression("Length", "Params.pad11_length")
pad11.Reversed = True

sketch12 = doc.addObject("Sketcher::SketchObject", "Sketch011")
body.addObject(sketch12)
sketch12.AttachmentSupport = (doc.XZ_Plane, [""])
sketch12.MapMode = "FlatFace"
sketch12.AttachmentOffset = App.Placement(V(0, 0, -50), App.Rotation())
sketch12.addGeometry(Part.ArcOfCircle(Part.Circle(V(-1799.3, -215, 0), V(0, 0, 1), 10), math.radians(134), math.radians(314)), False)
sketch12.addGeometry(Part.LineSegment(V(-1806.3, -207.9, 0), V(-1599, -5, 0)), False)
sketch12.addGeometry(Part.ArcOfCircle(Part.Circle(V(-1592, -12.2, 0), V(0, 0, 1), 10), math.radians(-46), math.radians(134)), False)
sketch12.addGeometry(Part.LineSegment(V(-1585, -19.3, 0), V(-1790, -219.9, 0)), False)
sketch12.addGeometry(Part.LineSegment(V(-1790, -219.9, 0), V(-1792.3, -222.1, 0)), False)
sketch12.addConstraint(Sketcher.Constraint("Tangent", 0, 1, 1, 1))
sketch12.addConstraint(Sketcher.Constraint("Tangent", 1, 2, 2, 2))
sketch12.addConstraint(Sketcher.Constraint("Tangent", 2, 1, 3, 1))
sketch12.addConstraint(Sketcher.Constraint("Coincident", 3, 2, 4, 1))
sketch12.addConstraint(Sketcher.Constraint("Tangent", 4, 2, 0, 2))
sketch12.addConstraint(Sketcher.Constraint("Equal", 0, 2))
sketch12.addConstraint(Sketcher.Constraint("Parallel", 1, 3))
sketch12.addConstraint(Sketcher.Constraint("Radius", 0, 10.0))
sketch12.addConstraint(Sketcher.Constraint("Distance", 1, 290.0))
sketch12.addConstraint(Sketcher.Constraint("DistanceY", 0, 3, -1, 1, 215.0))
sketch12.addConstraint(Sketcher.Constraint("DistanceX", 2, 3, -1, 1, 1592.0))
sketch12.addConstraint(Sketcher.Constraint("DistanceX", 3, 2, -1, 1, 1790.0))
sketch12.addConstraint(Sketcher.Constraint("DistanceX", 0, 1, -1, 1, 1806.274458))
sketch12.setExpression("Constraints[7]", "Params.sketch12_radius")
sketch12.setExpression("Constraints[8]", "Params.sketch12_length")
pad12 = doc.addObject("PartDesign::Pad", "Pad011")
body.addObject(pad12)
pad12.Profile = sketch12
pad12.setExpression("Length", "Params.pad12_length")
pad12.Reversed = True

sketch13 = doc.addObject("Sketcher::SketchObject", "Sketch012")
body.addObject(sketch13)
sketch13.AttachmentSupport = (doc.XZ_Plane, [""])
sketch13.MapMode = "FlatFace"
sketch13.AttachmentOffset = App.Placement(V(0, 0, -700), App.Rotation())
sketch13.addGeometry(Part.LineSegment(V(-1599, -5.1, 0), V(-1806.3, -207.9, 0)), False)
sketch13.addGeometry(Part.ArcOfCircle(Part.Circle(V(-1799.3, -215, 0), V(0, 0, 1), 10), math.radians(134), math.radians(314)), False)
sketch13.addGeometry(Part.LineSegment(V(-1792.3, -222.2, 0), V(-1790, -219.9, 0)), False)
sketch13.addGeometry(Part.LineSegment(V(-1790, -219.9, 0), V(-1585, -19.4, 0)), False)
sketch13.addGeometry(Part.ArcOfCircle(Part.Circle(V(-1592, -12.2, 0), V(0, 0, 1), 10), math.radians(-46), math.radians(134)), False)
sketch13.addConstraint(Sketcher.Constraint("Tangent", 0, 2, 1, 1))
sketch13.addConstraint(Sketcher.Constraint("Coincident", 1, 2, 2, 1))
sketch13.addConstraint(Sketcher.Constraint("Coincident", 2, 2, 3, 1))
sketch13.addConstraint(Sketcher.Constraint("Tangent", 3, 2, 4, 1))
sketch13.addConstraint(Sketcher.Constraint("Coincident", 4, 2, 0, 1))
sketch13.addConstraint(Sketcher.Constraint("Equal", 1, 4))
sketch13.addConstraint(Sketcher.Constraint("Parallel", 0, 2))
sketch13.addConstraint(Sketcher.Constraint("Radius", 1, 10.0))
sketch13.addConstraint(Sketcher.Constraint("Distance", 0, 290.0))
sketch13.addConstraint(Sketcher.Constraint("DistanceX", 2, 2, -1, 1, 1790.0))
sketch13.addConstraint(Sketcher.Constraint("Distance", 2, 3.253731))
sketch13.addConstraint(Sketcher.Constraint("Distance", 3, 286.746269))
sketch13.addConstraint(Sketcher.Constraint("DistanceY", 1, 3, -1, 1, 215.027581))
sketch13.addConstraint(Sketcher.Constraint("DistanceY", 0, 2, -1, 1, 207.879829))
sketch13.addConstraint(Sketcher.Constraint("DistanceY", 3, 2, -1, 1, 19.367978))
sketch13.setExpression("Constraints[7]", "Params.sketch13_radius")
sketch13.setExpression("Constraints[8]", "Params.sketch13_length")
pad13 = doc.addObject("PartDesign::Pad", "Pad012")
body.addObject(pad13)
pad13.Profile = sketch13
pad13.setExpression("Length", "Params.pad13_length")

doc.recompute()
